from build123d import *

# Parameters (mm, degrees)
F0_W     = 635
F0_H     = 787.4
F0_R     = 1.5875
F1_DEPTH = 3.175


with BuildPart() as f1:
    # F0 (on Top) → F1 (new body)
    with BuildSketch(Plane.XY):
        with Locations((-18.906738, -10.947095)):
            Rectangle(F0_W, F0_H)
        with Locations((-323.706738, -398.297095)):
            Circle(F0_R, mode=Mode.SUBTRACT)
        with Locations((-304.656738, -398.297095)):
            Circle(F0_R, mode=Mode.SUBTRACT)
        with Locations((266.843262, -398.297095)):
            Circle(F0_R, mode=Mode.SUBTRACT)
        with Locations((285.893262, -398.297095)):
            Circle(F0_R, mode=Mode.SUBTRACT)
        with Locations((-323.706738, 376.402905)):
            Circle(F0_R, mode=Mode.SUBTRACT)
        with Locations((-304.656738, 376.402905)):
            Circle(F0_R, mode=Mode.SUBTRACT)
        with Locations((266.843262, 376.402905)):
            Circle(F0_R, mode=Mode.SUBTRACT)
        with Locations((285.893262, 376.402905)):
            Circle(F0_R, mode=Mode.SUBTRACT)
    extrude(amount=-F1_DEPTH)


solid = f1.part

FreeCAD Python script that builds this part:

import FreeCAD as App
import Part
import Sketcher
from FreeCAD import Vector
Q = App.Units.Quantity

doc = App.newDocument("Part")
body = doc.addObject("PartDesign::Body", "Body")

# Sketch on XY plane
sketch1 = doc.addObject("Sketcher::SketchObject", "Sketch")
body.addObject(sketch1)
sketch1.AttachmentSupport = (doc.XY_Plane, [""])
sketch1.MapMode = "FlatFace"
sketch1.addGeometry(Part.LineSegment(Vector(-336.4, 382.8, 0), Vector(-336.4, -404.6, 0)), False)
sketch1.addGeometry(Part.LineSegment(Vector(-336.4, -404.6, 0), Vector(298.6, -404.6, 0)), False)
sketch1.addGeometry(Part.LineSegment(Vector(298.6, -404.6, 0), Vector(298.6, 382.8, 0)), False)
sketch1.addGeometry(Part.LineSegment(Vector(298.6, 382.8, 0), Vector(-336.4, 382.8, 0)), False)
sketch1.addGeometry(Part.Circle(Vector(-323.7, -398.3, 0), Vector(0, 0, 1), 1.6), False)
sketch1.addGeometry(Part.Circle(Vector(-304.7, -398.3, 0), Vector(0, 0, 1), 1.6), False)
sketch1.addGeometry(Part.Circle(Vector(266.8, -398.3, 0), Vector(0, 0, 1), 1.6), False)
sketch1.addGeometry(Part.Circle(Vector(285.9, -398.3, 0), Vector(0, 0, 1), 1.6), False)
sketch1.addGeometry(Part.Circle(Vector(-323.7, 376.4, 0), Vector(0, 0, 1), 1.6), False)
sketch1.addGeometry(Part.Circle(Vector(-304.7, 376.4, 0), Vector(0, 0, 1), 1.6), False)
sketch1.addGeometry(Part.Circle(Vector(266.8, 376.4, 0), Vector(0, 0, 1), 1.6), False)
sketch1.addGeometry(Part.Circle(Vector(285.9, 376.4, 0), Vector(0, 0, 1), 1.6), False)
sketch1.addConstraint(Sketcher.Constraint("Coincident", 0, 2, 1, 1))
sketch1.addConstraint(Sketcher.Constraint("Coincident", 1, 2, 2, 1))
sketch1.addConstraint(Sketcher.Constraint("Coincident", 2, 2, 3, 1))
sketch1.addConstraint(Sketcher.Constraint("Coincident", 3, 2, 0, 1))
sketch1.addConstraint(Sketcher.Constraint("Vertical", 0))
sketch1.addConstraint(Sketcher.Constraint("Horizontal", 1))
sketch1.addConstraint(Sketcher.Constraint("Vertical", 2))
sketch1.addConstraint(Sketcher.Constraint("Horizontal", 3))
sketch1.addConstraint(Sketcher.Constraint("Equal", 4, 5))
sketch1.addConstraint(Sketcher.Constraint("Equal", 5, 6))
sketch1.addConstraint(Sketcher.Constraint("Equal", 6, 7))
sketch1.addConstraint(Sketcher.Constraint("Equal", 7, 8))
sketch1.addConstraint(Sketcher.Constraint("Equal", 8, 9))
sketch1.addConstraint(Sketcher.Constraint("Equal", 9, 10))
sketch1.addConstraint(Sketcher.Constraint("Equal", 10, 11))
sketch1.addConstraint(Sketcher.Constraint("Horizontal", 4, 3, 5, 3))
sketch1.addConstraint(Sketcher.Constraint("Horizontal", 5, 3, 6, 3))
sketch1.addConstraint(Sketcher.Constraint("Horizontal", 6, 3, 7, 3))
sketch1.addConstraint(Sketcher.Constraint("Horizontal", 8, 3, 9, 3))
sketch1.addConstraint(Sketcher.Constraint("Horizontal", 9, 3, 10, 3))
sketch1.addConstraint(Sketcher.Constraint("Horizontal", 10, 3, 11, 3))
sketch1.addConstraint(Sketcher.Constraint("Vertical", 4, 3, 8, 3))
sketch1.addConstraint(Sketcher.Constraint("Vertical", 5, 3, 9, 3))
sketch1.addConstraint(Sketcher.Constraint("Vertical", 6, 3, 10, 3))
sketch1.addConstraint(Sketcher.Constraint("Vertical", 7, 3, 11, 3))
sketch1.addConstraint(Sketcher.Constraint("DistanceX", 1, 1, 1, 2, Q("25 in")))
sketch1.addConstraint(Sketcher.Constraint("DistanceY", 0, 2, 0, 1, Q("31 in")))
sketch1.addConstraint(Sketcher.Constraint("Diameter", 4, Q("0.125 in")))
sketch1.addConstraint(Sketcher.Constraint("DistanceX", 4, 3, 7, 3, Q("24 in")))
sketch1.addConstraint(Sketcher.Constraint("DistanceX", 5, 3, 6, 3, Q("22.5 in")))
sketch1.addConstraint(Sketcher.Constraint("DistanceY", 4, 3, 8, 3, Q("30.5 in")))
sketch1.addConstraint(Sketcher.Constraint("DistanceX", 0, 2, 4, 3, Q("0.5 in")))
sketch1.addConstraint(Sketcher.Constraint("DistanceX", 4, 3, 5, 3, Q("0.75 in")))
sketch1.addConstraint(Sketcher.Constraint("DistanceY", 0, 2, 4, 3, Q("0.25 in")))
sketch1.addConstraint(Sketcher.Constraint("DistanceX", 5, 3, -1, 1, Q("304.656738 mm")))
sketch1.addConstraint(Sketcher.Constraint("DistanceY", 4, 3, -1, 1, Q("398.297095 mm")))
pad1 = doc.addObject("PartDesign::Pad", "Pad")
body.addObject(pad1)
pad1.Profile = sketch1
pad1.Length = Q("0.125 in")
pad1.Reversed = True

doc.recompute()
